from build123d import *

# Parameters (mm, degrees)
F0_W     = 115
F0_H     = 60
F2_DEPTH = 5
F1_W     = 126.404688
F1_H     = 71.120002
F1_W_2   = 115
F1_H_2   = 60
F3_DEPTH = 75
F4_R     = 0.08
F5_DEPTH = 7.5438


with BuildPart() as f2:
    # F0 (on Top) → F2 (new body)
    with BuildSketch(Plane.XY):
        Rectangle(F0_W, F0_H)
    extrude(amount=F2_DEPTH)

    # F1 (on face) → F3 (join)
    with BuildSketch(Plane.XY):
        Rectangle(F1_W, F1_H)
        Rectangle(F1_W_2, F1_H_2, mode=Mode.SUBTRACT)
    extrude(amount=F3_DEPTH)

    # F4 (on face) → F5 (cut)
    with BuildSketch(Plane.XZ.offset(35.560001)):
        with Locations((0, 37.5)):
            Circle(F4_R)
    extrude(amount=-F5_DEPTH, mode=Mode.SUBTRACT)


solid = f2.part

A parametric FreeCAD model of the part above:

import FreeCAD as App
import Part
import Sketcher
from FreeCAD import Vector


def add_polygon(sketch, points):
    """Adds a closed chain of lines whose ends are joined by coincident constraints."""
    first, n = sketch.GeometryCount, len(points)
    for a, b in zip(points, points[1:] + points[:1]):
        sketch.addGeometry(Part.LineSegment(App.Vector(*a, 0), App.Vector(*b, 0)), False)
    for i in range(n):
        sketch.addConstraint(Sketcher.Constraint("Coincident", first + i, 2, first + (i + 1) % n, 1))

doc = App.newDocument("Part")
params = doc.addObject("Spreadsheet::Sheet", "Params")
for row, (alias, value) in enumerate([
    ("sketch1_width", "115 mm"),
    ("sketch1_height", "60 mm"),
    ("pad1_length", "5 mm"),
    ("sketch2_width", "115 mm"),
    ("sketch2_height", "60 mm"),
    ("sketch2_height2", "71.120002 mm"),
    ("pad2_length", "75 mm"),
    ("sketch3_diameter", "0.16 mm"),
    ("pocket1_length", "7.5438 mm"),
], start=1):
    params.set(f"A{row}", alias)
    params.set(f"B{row}", "=" + value)
    params.setAlias(f"B{row}", alias)

body = doc.addObject("PartDesign::Body", "Body")

# Sketch on XY plane
sketch1 = body.newObject("Sketcher::SketchObject", "Sketch")
sketch1.AttachmentSupport = (doc.getObject("XY_Plane"), [""])
sketch1.MapMode = "FlatFace"
add_polygon(sketch1, [(-58, 30), (-58, -30), (58, -30), (58, 30)])  # lines 0-3
sketch1.addConstraint([
    Sketcher.Constraint("Vertical", 0),
    Sketcher.Constraint("Horizontal", 1),
    Sketcher.Constraint("Vertical", 2),
    Sketcher.Constraint("Horizontal", 3),
    Sketcher.Constraint("Symmetric", 0, 2, 2, 2, -1, 1),
    Sketcher.Constraint("DistanceX", 1, 1, 1, 2, 115.0),
    Sketcher.Constraint("DistanceY", 0, 2, 0, 1, 60.0),
])
sketch1.setExpression("Constraints[9]", "Params.sketch1_width")
sketch1.setExpression("Constraints[10]", "Params.sketch1_height")
pad1 = body.newObject("PartDesign::Pad", "Pad")
pad1.Profile = sketch1
pad1.setExpression("Length", "Params.pad1_length")

# Sketch on XY plane
sketch2 = body.newObject("Sketcher::SketchObject", "Sketch001")
sketch2.AttachmentSupport = (doc.getObject("XY_Plane"), [""])
sketch2.MapMode = "FlatFace"
add_polygon(sketch2, [(-63, 36), (-63, -36), (63, -36), (63, 36)])  # lines 0-3
add_polygon(sketch2, [(58, -30), (-58, -30), (-58, 30), (58, 30)])  # lines 4-7
sketch2.addConstraint([
    Sketcher.Constraint("Vertical", 0),
    Sketcher.Constraint("Horizontal", 1),
    Sketcher.Constraint("Vertical", 2),
    Sketcher.Constraint("Horizontal", 3),
    Sketcher.Constraint("Horizontal", 4),
    Sketcher.Constraint("Vertical", 5),
    Sketcher.Constraint("Horizontal", 6),
    Sketcher.Constraint("Vertical", 7),
    Sketcher.Constraint("Symmetric", 0, 2, 2, 2, -1, 1),
    Sketcher.Constraint("Symmetric", 4, 2, 6, 2, -1, 1),
    Sketcher.Constraint("DistanceX", 4, 2, 4, 1, 115.0),
    Sketcher.Constraint("DistanceY", 5, 1, 5, 2, 60.0),
    Sketcher.Constraint("DistanceY", 0, 2, 0, 1, 71.120002),
    Sketcher.Constraint("DistanceX", 1, 1, 1, 2, 126.404688),
])
sketch2.setExpression("Constraints[18]", "Params.sketch2_width")
sketch2.setExpression("Constraints[19]", "Params.sketch2_height")
sketch2.setExpression("Constraints[20]", "Params.sketch2_height2")
pad2 = body.newObject("PartDesign::Pad", "Pad001")
pad2.Profile = sketch2
pad2.setExpression("Length", "Params.pad2_length")

# Sketch on XZ plane
sketch3 = body.newObject("Sketcher::SketchObject", "Sketch002")
sketch3.AttachmentSupport = (doc.getObject("XZ_Plane"), [""])
sketch3.MapMode = "FlatFace"
sketch3.AttachmentOffset = App.Placement(Vector(0, 0, 35.560001), App.Rotation())
sketch3.addGeometry(Part.Circle(Vector(0, 37.5, 0), Vector(0, 0, 1), 0.08), False)
sketch3.addConstraint([
    Sketcher.Constraint("PointOnObject", 0, 3, -2),
    Sketcher.Constraint("Diameter", 0, 0.16),
    Sketcher.Constraint("DistanceY", -1, 1, 0, 3, 37.5),
])
sketch3.setExpression("Constraints[1]", "Params.sketch3_diameter")
pocket1 = body.newObject("PartDesign::Pocket", "Pocket")
pocket1.Profile = sketch3
pocket1.setExpression("Length", "Params.pocket1_length")

doc.recompute()
